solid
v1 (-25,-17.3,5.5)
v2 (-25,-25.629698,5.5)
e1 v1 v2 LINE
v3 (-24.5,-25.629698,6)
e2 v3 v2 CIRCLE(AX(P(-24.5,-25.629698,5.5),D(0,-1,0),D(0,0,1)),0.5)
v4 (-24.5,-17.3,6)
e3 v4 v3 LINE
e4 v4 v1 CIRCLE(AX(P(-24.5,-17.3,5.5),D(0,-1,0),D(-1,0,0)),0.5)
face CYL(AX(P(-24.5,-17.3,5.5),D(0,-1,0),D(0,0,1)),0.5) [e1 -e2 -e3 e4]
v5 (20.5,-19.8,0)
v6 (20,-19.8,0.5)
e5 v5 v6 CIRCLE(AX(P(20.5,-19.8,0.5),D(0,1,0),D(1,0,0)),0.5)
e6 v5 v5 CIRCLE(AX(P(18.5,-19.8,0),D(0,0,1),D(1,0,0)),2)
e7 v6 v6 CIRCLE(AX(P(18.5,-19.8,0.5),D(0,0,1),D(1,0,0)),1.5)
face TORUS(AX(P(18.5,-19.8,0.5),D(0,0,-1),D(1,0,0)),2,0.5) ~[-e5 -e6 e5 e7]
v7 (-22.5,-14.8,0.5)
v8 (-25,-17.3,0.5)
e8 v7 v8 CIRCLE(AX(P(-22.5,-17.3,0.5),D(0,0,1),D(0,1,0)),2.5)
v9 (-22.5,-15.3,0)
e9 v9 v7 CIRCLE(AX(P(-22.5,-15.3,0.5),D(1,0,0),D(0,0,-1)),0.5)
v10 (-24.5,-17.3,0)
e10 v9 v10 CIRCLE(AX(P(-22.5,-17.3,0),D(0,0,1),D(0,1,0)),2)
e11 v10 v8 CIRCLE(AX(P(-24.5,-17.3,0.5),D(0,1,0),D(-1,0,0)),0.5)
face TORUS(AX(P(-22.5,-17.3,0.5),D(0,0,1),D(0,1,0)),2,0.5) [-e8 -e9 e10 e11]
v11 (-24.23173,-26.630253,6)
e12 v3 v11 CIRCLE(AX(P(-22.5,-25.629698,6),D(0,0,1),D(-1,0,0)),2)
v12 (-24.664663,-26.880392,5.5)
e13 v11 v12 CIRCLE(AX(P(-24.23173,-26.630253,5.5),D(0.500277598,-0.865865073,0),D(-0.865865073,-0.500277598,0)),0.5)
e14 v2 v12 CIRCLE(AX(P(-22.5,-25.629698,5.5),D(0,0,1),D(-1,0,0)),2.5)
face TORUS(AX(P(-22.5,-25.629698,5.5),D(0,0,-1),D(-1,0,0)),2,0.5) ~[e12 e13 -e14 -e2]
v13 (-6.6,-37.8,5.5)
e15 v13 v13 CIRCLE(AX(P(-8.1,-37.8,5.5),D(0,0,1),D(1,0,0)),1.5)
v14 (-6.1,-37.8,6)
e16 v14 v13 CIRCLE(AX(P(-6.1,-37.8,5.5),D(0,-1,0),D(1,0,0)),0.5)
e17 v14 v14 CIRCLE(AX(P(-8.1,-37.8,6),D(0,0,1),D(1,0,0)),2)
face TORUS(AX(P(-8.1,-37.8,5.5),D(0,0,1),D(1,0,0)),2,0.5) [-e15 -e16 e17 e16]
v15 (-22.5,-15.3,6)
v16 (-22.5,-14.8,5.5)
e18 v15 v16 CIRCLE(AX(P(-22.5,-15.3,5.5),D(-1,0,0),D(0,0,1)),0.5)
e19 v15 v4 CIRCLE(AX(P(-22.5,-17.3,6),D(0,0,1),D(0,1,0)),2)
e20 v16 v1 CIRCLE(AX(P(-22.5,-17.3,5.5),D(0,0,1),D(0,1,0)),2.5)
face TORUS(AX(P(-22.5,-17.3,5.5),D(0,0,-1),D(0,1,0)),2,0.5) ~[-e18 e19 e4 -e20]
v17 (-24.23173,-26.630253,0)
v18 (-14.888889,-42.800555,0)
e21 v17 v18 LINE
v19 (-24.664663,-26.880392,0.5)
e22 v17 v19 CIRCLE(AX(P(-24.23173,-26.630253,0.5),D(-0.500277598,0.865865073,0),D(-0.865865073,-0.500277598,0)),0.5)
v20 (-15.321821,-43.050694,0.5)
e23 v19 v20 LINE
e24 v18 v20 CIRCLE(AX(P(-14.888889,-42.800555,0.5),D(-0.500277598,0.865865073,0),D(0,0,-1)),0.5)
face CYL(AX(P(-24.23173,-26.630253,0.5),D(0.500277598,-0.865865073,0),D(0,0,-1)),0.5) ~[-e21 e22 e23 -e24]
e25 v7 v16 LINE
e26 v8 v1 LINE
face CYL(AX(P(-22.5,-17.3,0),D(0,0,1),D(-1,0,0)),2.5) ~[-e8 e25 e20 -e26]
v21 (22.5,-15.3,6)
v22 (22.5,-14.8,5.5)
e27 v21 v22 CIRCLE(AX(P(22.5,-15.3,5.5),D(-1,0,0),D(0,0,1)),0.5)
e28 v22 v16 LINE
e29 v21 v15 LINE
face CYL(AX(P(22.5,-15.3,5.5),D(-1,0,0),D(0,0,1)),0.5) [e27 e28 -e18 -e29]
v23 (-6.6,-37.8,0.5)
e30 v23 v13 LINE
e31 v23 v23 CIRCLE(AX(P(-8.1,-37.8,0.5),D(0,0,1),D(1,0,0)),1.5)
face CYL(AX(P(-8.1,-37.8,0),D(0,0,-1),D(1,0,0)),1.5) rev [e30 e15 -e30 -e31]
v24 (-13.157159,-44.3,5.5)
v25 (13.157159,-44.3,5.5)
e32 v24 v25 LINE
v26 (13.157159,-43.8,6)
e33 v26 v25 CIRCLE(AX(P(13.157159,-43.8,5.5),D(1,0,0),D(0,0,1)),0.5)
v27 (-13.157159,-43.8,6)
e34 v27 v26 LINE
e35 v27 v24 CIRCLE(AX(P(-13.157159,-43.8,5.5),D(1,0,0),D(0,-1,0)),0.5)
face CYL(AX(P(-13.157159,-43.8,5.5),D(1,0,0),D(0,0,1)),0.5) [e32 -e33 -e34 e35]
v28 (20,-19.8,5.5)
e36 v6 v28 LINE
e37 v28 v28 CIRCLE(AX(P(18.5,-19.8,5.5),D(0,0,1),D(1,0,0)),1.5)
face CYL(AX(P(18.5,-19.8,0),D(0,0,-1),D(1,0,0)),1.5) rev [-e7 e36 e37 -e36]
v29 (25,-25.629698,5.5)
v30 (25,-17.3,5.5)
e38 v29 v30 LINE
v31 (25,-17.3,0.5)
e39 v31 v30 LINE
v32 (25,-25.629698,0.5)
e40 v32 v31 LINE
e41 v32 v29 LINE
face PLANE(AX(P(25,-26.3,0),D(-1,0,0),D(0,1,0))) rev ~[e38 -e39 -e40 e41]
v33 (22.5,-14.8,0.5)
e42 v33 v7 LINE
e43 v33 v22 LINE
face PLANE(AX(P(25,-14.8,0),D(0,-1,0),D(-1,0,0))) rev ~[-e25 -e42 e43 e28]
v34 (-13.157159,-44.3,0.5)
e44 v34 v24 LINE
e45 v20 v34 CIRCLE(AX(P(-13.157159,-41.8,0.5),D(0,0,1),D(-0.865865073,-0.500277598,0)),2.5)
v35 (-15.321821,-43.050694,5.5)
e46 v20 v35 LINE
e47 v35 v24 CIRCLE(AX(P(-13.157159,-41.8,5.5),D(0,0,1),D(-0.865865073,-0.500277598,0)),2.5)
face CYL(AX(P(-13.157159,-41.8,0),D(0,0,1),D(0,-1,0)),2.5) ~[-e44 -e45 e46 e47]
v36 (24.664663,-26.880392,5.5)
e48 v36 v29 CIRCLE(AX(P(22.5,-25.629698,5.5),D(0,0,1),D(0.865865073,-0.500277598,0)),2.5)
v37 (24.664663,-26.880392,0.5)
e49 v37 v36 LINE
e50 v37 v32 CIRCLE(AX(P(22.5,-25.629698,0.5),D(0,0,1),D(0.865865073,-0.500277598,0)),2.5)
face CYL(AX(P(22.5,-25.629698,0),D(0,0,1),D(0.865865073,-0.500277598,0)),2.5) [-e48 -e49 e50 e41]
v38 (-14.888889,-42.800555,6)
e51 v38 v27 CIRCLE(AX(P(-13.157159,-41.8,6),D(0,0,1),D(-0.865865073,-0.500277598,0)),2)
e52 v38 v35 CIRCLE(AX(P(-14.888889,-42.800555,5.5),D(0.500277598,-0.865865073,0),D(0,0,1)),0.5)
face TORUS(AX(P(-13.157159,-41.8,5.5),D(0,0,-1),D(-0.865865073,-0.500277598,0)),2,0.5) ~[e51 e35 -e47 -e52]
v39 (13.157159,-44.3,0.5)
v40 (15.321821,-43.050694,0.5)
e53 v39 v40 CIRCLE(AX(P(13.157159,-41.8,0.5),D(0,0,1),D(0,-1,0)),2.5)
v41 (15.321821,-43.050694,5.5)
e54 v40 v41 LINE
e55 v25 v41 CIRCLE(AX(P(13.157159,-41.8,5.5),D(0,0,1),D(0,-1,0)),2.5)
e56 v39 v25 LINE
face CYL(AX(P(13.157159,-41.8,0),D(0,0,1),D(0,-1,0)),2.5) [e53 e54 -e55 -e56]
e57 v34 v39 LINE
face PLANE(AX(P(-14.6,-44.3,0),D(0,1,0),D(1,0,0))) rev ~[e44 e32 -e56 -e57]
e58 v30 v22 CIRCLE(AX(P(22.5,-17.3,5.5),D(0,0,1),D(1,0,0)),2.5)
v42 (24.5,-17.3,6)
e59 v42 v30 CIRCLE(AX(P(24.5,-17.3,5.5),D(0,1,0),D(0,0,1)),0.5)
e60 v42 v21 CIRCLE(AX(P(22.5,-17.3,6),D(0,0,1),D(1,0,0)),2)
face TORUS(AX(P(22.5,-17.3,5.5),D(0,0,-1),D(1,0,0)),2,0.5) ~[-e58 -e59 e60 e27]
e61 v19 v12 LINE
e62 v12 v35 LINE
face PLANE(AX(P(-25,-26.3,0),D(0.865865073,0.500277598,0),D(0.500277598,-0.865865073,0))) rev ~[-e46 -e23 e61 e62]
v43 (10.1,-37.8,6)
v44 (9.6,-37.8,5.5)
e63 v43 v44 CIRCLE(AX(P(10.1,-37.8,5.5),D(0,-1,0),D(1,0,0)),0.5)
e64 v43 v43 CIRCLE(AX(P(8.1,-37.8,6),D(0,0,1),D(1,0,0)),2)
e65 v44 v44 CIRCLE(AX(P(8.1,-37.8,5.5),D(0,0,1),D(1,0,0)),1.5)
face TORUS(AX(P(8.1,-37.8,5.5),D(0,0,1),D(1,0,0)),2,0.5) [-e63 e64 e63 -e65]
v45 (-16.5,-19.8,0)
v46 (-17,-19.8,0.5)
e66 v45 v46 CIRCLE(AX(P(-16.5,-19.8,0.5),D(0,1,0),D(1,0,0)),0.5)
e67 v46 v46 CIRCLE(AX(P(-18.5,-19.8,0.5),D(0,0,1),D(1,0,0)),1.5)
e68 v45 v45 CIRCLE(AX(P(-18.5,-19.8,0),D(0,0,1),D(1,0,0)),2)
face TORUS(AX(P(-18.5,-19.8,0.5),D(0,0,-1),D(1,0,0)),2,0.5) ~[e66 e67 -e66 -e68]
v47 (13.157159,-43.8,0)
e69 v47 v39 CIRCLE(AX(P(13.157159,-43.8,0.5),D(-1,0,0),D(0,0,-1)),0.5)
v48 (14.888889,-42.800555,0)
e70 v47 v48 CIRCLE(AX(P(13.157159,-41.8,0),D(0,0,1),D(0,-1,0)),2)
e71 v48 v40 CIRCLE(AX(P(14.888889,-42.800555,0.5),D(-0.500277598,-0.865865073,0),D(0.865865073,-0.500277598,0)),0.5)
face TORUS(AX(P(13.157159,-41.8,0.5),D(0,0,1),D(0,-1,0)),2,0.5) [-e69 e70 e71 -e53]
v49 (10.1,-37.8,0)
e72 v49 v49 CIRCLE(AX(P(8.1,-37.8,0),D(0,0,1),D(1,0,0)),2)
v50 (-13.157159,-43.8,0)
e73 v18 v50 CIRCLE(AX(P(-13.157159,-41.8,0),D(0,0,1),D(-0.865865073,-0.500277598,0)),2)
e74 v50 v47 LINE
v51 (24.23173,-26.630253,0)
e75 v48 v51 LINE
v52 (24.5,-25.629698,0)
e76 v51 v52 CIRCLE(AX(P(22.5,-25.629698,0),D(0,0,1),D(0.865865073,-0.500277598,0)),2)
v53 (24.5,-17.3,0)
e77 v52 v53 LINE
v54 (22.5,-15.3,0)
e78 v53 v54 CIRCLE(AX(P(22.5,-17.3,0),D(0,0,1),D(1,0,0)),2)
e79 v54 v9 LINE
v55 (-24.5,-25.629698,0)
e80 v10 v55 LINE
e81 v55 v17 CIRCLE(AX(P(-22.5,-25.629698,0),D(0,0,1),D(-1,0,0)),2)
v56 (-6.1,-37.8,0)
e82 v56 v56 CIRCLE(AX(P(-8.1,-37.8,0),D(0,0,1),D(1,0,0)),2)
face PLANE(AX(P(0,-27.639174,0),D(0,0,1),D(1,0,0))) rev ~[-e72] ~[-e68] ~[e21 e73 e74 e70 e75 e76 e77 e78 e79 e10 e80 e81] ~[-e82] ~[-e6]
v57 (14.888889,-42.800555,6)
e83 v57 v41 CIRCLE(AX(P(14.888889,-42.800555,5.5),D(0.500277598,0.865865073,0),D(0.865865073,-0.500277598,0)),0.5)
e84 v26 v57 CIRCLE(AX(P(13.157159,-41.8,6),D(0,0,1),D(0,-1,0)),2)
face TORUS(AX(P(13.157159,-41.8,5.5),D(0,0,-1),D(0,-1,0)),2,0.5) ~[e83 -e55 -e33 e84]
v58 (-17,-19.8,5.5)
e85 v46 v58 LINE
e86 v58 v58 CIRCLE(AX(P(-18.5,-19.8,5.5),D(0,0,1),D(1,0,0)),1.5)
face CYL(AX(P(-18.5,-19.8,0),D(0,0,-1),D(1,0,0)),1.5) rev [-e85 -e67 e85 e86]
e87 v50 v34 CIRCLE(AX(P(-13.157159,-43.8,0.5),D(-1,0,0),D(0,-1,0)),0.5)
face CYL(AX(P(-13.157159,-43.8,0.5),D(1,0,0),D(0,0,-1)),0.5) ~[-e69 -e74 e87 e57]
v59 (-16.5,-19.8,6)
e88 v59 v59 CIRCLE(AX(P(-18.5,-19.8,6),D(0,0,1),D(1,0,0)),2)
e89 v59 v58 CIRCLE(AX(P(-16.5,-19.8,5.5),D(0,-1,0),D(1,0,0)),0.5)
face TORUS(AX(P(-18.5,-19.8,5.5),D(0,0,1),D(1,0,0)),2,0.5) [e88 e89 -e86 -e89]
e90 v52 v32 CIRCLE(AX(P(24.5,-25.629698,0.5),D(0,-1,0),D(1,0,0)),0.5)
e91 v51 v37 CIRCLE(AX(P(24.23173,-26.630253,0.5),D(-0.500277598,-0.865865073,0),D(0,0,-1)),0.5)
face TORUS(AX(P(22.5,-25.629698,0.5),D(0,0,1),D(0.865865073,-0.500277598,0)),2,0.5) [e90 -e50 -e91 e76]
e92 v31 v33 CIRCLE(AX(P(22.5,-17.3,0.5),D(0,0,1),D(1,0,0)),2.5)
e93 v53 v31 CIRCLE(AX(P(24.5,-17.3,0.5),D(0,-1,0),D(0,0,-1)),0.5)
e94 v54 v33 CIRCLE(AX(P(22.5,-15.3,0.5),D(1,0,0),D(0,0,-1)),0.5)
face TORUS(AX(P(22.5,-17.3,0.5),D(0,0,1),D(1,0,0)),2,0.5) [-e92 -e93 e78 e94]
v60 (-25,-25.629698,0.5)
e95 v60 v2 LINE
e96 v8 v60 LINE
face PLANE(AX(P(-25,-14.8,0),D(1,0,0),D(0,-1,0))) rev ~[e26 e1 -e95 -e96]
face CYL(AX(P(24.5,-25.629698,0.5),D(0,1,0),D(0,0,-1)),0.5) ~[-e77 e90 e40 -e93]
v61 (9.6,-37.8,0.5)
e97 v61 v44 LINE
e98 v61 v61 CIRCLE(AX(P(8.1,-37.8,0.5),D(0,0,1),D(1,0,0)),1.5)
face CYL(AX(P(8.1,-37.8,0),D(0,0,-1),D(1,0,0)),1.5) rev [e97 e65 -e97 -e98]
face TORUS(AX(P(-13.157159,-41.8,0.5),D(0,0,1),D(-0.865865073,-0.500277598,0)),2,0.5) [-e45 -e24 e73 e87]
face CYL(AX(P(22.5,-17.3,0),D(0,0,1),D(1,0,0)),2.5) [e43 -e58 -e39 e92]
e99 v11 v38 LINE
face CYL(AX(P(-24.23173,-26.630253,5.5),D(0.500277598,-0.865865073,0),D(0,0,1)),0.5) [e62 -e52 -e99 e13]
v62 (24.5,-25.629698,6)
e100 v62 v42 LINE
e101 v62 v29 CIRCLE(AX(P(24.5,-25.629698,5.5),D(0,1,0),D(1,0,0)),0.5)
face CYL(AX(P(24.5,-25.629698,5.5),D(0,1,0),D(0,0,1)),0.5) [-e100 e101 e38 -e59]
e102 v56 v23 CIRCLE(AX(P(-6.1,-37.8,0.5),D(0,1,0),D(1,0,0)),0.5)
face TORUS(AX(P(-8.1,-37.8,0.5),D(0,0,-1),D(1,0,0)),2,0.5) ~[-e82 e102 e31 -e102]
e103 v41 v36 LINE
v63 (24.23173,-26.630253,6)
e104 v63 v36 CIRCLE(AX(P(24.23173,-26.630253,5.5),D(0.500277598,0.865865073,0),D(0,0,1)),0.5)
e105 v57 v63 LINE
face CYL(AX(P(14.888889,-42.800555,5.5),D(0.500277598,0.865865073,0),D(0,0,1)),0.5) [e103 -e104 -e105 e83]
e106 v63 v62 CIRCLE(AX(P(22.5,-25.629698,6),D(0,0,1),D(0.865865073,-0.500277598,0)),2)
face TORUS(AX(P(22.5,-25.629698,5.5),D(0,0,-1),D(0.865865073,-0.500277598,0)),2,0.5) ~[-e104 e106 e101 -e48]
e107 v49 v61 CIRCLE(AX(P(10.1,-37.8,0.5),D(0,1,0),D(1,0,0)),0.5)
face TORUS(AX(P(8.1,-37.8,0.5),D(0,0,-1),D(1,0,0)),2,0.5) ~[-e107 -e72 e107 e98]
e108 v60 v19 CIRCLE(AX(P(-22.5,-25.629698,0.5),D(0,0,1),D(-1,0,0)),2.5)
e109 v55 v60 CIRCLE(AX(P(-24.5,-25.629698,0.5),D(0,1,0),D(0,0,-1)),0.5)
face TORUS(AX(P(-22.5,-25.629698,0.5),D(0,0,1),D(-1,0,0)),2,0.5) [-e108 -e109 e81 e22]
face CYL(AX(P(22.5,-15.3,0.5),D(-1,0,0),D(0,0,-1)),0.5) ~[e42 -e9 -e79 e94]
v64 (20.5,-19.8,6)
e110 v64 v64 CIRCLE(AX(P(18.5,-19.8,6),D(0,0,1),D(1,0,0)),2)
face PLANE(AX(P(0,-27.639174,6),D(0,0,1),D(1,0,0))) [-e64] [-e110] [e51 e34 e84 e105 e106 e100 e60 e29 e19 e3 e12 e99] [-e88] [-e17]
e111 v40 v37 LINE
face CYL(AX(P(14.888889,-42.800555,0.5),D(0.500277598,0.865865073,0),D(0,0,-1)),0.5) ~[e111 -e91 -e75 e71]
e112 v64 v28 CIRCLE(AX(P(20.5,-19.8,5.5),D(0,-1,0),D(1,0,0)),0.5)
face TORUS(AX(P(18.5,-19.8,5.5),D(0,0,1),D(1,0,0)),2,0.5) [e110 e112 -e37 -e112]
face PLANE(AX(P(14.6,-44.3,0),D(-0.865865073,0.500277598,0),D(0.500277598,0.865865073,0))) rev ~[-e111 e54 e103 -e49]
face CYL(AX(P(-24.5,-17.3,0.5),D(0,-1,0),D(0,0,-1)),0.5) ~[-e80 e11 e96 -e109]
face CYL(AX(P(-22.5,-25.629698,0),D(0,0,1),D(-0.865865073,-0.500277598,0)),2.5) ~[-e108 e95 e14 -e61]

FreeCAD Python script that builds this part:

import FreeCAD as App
import Part
import Sketcher
from FreeCAD import Vector
Q = App.Units.Quantity


def edges_at(feature, points):
    """Names of the edges that pass closest to the given points."""
    edges = feature.Shape.Edges
    near = lambda p: min(range(len(edges)), key=lambda i: edges[i].distToShape(Part.Vertex(*p))[0])
    return sorted({f"Edge{near(p) + 1}" for p in points})


def add_polygon(sketch, points):
    """Adds a closed chain of lines whose ends are joined by coincident constraints."""
    first, n = sketch.GeometryCount, len(points)
    for a, b in zip(points, points[1:] + points[:1]):
        sketch.addGeometry(Part.LineSegment(App.Vector(*a, 0), App.Vector(*b, 0)), False)
    for i in range(n):
        sketch.addConstraint(Sketcher.Constraint("Coincident", first + i, 2, first + (i + 1) % n, 1))

doc = App.newDocument("Part")
body = doc.addObject("PartDesign::Body", "Body")

sketch1 = body.newObject("Sketcher::SketchObject", "Sketch")
sketch1.AttachmentSupport = (doc.getObject("XY_Plane"), [""])
sketch1.MapMode = "FlatFace"
add_polygon(sketch1, [(-14.6, -44.3), (14.6, -44.3), (25, -26.3), (25, -14.8), (-25, -14.8), (-25, -26.3)])
sketch1.addGeometry(Part.Circle(Vector(-8.1, -37.8, 0), Vector(0, 0, 1), 1.5), False)
sketch1.addGeometry(Part.Circle(Vector(8.1, -37.8, 0), Vector(0, 0, 1), 1.5), False)
sketch1.addGeometry(Part.Circle(Vector(-18.5, -19.8, 0), Vector(0, 0, 1), 1.5), False)
sketch1.addGeometry(Part.Circle(Vector(18.5, -19.8, 0), Vector(0, 0, 1), 1.5), False)
sketch1.addConstraint(Sketcher.Constraint("Horizontal", 0))
sketch1.addConstraint(Sketcher.Constraint("Vertical", 2))
sketch1.addConstraint(Sketcher.Constraint("Horizontal", 3))
sketch1.addConstraint(Sketcher.Constraint("Vertical", 4))
sketch1.addConstraint(Sketcher.Constraint("Equal", 6, 7))
sketch1.addConstraint(Sketcher.Constraint("Equal", 7, 8))
sketch1.addConstraint(Sketcher.Constraint("Equal", 8, 9))
sketch1.addConstraint(Sketcher.Constraint("Symmetric", 6, 3, 7, 3, -2))
sketch1.addConstraint(Sketcher.Constraint("Symmetric", 8, 3, 9, 3, -2))
sketch1.addConstraint(Sketcher.Constraint("Symmetric", 1, 2, 4, 2, -2))
sketch1.addConstraint(Sketcher.Constraint("Equal", 1, 5))
sketch1.addConstraint(Sketcher.Constraint("Diameter", 6, Q("3 mm")))
sketch1.addConstraint(Sketcher.Constraint("DistanceX", 3, 2, 3, 1, Q("50 mm")))
sketch1.addConstraint(Sketcher.Constraint("DistanceX", 0, 1, 0, 2, Q("29.2 mm")))
sketch1.addConstraint(Sketcher.Constraint("DistanceY", 2, 1, 2, 2, Q("11.5 mm")))
sketch1.addConstraint(Sketcher.Constraint("DistanceY", 6, 3, 8, 3, Q("18 mm")))
sketch1.addConstraint(Sketcher.Constraint("DistanceX", 8, 3, 9, 3, Q("37 mm")))
sketch1.addConstraint(Sketcher.Constraint("DistanceY", 0, 2, 1, 2, Q("18 mm")))
sketch1.addConstraint(Sketcher.Constraint("DistanceY", 9, 3, 2, 2, Q("5 mm")))
sketch1.addConstraint(Sketcher.Constraint("DistanceX", 6, 3, -1, 1, Q("8.1 mm")))
sketch1.addConstraint(Sketcher.Constraint("DistanceY", 6, 3, -1, 1, Q("37.8 mm")))
pad1 = body.newObject("PartDesign::Pad", "Pad")
pad1.Profile = sketch1
pad1.Length = 6
doc.recompute()

fillet = body.newObject("PartDesign::Fillet", "Fillet")
fillet.Base = (pad1, edges_at(pad1, [
    (-25, -26.3, 3),
    (-25, -14.8, 3),
    (25, -14.8, 3),
    (25, -26.3, 3),
    (14.6, -44.3, 3),
    (-14.6, -44.3, 3),
]))
fillet.Radius = 2.5
doc.recompute()

fillet2 = body.newObject("PartDesign::Fillet", "Fillet001")
fillet2.Base = (fillet, edges_at(fillet, [
    (-20, -19.8, 0),
    (-20, -19.8, 6),
    (17, -19.8, 0),
    (17, -19.8, 6),
    (6.6, -37.8, 0),
    (6.6, -37.8, 6),
    (-9.6, -37.8, 0),
    (-9.6, -37.8, 6),
    (0, -14.8, 0),
    (0, -14.8, 6),
    (-19.993, -34.966, 0),
    (-25, -21.465, 0),
    (25, -21.465, 0),
    (19.993, -34.966, 0),
    (0, -44.3, 0),
    (-14.407, -43.965, 0),
    (-24.915, -26.277, 0),
    (-24.268, -15.532, 0),
    (14.407, -43.965, 0),
    (24.915, -26.277, 0),
    (24.268, -15.532, 0),
    (25, -21.465, 6),
    (-19.993, -34.966, 6),
    (0, -44.3, 6),
    (19.993, -34.966, 6),
    (-25, -21.465, 6),
    (-14.407, -43.965, 6),
    (-24.915, -26.277, 6),
    (-24.268, -15.532, 6),
    (14.407, -43.965, 6),
    (24.915, -26.277, 6),
    (24.268, -15.532, 6),
]))
fillet2.Radius = 0.5

doc.recompute()
